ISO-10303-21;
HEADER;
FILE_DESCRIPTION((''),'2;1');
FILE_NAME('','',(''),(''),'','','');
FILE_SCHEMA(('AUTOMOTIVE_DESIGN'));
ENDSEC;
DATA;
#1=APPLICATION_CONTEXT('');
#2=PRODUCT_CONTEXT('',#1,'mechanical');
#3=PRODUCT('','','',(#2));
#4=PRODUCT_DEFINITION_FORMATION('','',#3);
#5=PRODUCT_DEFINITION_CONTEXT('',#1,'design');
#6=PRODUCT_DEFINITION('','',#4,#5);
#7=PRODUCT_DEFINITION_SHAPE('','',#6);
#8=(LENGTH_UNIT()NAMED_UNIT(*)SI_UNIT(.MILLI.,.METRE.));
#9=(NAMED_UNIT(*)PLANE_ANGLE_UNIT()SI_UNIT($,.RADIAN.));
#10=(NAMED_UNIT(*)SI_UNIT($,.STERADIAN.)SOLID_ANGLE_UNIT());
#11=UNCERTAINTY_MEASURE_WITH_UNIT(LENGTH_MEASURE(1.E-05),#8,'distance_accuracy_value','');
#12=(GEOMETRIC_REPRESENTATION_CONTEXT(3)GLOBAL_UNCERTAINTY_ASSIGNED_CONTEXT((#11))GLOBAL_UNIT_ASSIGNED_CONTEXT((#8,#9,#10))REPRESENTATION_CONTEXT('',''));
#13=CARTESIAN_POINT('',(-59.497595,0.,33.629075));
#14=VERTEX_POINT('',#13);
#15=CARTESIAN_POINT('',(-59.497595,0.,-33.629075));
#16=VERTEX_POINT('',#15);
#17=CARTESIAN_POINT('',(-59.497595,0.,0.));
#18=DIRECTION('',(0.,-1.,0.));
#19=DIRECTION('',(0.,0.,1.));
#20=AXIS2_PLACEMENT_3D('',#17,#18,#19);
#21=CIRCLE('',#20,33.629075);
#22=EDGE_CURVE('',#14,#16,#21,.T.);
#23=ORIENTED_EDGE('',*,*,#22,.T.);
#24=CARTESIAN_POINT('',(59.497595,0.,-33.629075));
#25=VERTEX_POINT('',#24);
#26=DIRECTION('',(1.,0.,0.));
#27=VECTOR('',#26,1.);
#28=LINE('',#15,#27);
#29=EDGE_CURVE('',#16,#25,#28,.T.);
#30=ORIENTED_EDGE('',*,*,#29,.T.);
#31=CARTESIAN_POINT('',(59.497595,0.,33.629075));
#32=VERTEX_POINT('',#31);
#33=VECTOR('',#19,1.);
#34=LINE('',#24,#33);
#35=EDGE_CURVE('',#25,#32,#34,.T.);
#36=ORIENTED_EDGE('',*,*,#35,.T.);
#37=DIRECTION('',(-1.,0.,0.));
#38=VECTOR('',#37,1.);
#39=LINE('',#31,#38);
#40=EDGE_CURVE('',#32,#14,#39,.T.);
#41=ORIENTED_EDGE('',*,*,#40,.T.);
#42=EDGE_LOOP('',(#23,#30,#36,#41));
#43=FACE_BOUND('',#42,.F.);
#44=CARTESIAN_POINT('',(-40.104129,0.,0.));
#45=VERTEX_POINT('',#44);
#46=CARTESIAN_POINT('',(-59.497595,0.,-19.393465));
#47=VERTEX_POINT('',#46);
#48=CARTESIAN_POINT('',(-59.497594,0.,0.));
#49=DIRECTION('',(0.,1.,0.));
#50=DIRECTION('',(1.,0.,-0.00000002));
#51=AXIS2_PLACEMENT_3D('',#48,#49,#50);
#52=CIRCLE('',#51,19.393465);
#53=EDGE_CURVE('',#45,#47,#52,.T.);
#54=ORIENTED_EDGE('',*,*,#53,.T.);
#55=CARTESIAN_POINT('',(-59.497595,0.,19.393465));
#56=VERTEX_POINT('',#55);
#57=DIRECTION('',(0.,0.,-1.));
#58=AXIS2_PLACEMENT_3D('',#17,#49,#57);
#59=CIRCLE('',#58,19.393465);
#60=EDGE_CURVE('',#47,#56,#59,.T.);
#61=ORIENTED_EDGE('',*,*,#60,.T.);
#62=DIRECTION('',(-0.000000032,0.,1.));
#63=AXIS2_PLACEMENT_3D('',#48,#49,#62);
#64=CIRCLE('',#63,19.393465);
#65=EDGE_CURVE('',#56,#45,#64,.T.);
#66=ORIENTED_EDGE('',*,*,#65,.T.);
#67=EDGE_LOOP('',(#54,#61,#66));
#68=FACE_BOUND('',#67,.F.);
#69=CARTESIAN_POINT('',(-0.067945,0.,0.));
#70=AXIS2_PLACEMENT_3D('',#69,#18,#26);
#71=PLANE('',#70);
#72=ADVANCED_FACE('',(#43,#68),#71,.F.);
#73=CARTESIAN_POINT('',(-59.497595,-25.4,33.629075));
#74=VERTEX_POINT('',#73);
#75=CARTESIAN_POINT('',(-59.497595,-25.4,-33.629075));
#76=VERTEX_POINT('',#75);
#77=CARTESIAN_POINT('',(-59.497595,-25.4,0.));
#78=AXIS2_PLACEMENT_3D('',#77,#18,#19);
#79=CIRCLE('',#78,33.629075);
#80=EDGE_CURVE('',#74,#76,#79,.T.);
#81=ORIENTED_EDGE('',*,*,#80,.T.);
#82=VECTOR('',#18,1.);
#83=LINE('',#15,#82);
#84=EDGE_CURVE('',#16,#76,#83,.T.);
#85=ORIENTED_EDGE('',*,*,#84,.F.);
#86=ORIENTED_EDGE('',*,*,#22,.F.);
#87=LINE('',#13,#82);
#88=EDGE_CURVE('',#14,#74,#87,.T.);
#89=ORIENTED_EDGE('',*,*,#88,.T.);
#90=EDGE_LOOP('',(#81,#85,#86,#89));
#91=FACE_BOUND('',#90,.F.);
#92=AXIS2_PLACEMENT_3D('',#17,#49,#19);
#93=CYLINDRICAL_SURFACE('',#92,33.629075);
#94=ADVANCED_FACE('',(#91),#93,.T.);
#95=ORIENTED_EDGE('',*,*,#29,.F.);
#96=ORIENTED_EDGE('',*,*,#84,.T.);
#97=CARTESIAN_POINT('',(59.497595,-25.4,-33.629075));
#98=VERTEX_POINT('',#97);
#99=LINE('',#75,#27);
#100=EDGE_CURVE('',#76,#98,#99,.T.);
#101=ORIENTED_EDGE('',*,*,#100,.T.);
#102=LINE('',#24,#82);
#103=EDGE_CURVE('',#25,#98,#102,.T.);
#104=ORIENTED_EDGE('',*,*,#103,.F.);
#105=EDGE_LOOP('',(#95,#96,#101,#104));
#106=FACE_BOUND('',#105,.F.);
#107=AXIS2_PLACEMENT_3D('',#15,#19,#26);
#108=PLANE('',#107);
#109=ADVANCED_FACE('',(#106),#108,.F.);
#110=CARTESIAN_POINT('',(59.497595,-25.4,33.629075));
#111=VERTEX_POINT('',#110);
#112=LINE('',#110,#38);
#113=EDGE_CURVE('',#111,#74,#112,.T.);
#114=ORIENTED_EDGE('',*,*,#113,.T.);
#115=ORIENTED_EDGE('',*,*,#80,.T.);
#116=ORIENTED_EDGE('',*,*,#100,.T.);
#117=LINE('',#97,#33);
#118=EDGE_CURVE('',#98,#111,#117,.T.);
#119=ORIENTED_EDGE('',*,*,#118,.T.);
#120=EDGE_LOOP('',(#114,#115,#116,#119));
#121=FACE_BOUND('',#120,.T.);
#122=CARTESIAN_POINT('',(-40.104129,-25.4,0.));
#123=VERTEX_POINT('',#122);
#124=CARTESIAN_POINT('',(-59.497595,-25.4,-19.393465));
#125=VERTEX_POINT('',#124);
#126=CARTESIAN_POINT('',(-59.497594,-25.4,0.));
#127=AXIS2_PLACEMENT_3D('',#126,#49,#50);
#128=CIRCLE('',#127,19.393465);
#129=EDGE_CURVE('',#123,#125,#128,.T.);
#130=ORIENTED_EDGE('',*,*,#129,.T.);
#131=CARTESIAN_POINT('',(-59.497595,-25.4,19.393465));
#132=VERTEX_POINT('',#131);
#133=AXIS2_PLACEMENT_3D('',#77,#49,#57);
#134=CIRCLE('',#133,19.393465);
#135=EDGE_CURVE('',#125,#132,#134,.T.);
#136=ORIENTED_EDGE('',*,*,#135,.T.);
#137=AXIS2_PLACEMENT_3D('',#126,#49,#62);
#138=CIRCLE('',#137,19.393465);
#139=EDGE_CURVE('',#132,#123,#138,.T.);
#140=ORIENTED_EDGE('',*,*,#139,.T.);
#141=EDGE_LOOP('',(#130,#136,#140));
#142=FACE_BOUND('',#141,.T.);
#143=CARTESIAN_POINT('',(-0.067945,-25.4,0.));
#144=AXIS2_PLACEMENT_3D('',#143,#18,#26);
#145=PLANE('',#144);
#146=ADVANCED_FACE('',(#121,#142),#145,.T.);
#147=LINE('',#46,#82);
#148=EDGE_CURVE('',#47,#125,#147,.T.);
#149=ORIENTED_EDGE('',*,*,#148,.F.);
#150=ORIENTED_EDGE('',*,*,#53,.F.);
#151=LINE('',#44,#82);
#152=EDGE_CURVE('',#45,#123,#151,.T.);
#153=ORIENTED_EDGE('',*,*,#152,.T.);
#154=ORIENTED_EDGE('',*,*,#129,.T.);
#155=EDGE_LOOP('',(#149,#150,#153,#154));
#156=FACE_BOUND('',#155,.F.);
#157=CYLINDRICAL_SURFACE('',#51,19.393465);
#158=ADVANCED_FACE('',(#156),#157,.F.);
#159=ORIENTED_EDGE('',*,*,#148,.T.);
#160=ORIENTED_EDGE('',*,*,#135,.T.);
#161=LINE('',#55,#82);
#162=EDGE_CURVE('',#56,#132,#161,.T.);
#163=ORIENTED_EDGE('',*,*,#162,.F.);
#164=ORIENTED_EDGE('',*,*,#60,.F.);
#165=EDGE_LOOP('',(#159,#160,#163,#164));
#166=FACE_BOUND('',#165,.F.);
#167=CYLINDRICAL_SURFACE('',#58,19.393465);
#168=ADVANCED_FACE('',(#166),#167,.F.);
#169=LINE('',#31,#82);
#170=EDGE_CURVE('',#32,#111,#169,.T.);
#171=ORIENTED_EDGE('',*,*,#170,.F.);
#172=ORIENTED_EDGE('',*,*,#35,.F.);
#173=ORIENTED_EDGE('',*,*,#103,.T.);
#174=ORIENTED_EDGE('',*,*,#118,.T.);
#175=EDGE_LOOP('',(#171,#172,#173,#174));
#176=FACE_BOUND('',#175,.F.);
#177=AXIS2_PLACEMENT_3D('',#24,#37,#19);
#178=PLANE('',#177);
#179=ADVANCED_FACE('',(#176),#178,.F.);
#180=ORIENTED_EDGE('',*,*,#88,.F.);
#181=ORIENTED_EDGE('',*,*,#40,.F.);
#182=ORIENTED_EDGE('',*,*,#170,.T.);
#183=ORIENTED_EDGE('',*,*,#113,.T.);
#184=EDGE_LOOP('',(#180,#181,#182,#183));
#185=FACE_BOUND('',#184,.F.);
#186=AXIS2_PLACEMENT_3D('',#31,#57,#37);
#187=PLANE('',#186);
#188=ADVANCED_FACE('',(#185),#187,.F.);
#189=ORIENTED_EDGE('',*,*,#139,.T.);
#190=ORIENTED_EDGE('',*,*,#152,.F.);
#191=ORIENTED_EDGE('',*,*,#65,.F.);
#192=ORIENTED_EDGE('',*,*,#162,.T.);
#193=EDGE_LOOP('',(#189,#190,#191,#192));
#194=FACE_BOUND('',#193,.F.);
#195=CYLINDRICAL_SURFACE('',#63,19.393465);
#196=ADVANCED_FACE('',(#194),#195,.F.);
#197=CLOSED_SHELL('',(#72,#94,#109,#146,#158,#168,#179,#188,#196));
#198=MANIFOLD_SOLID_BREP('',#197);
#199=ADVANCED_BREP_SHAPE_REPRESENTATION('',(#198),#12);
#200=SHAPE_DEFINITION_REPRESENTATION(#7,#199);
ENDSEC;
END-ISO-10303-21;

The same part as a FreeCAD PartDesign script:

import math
import FreeCAD as App
import Part
import Sketcher
from FreeCAD import Vector
Q = App.Units.Quantity

doc = App.newDocument("Part")
body = doc.addObject("PartDesign::Body", "Body")

# Sketch on XZ plane
sketch1 = body.newObject("Sketcher::SketchObject", "Sketch")
sketch1.AttachmentSupport = (doc.getObject("XZ_Plane"), [""])
sketch1.MapMode = "FlatFace"
sketch1.addGeometry([
    Part.LineSegment(Vector(-59, -34, 0), Vector(59, -34, 0)),  # 0
    Part.LineSegment(Vector(59, -34, 0), Vector(59, 34, 0)),  # 1
    Part.LineSegment(Vector(59, 34, 0), Vector(-59, 34, 0)),  # 2
    Part.ArcOfCircle(Part.Circle(Vector(-59, 0, 0), Vector(0, 0, 1), 34), math.radians(90), math.radians(270)),  # 3
    Part.ArcOfCircle(Part.Circle(Vector(-59, 0, 0), Vector(0, 0, 1), 19), math.radians(0), math.radians(90)),  # 4
    Part.ArcOfCircle(Part.Circle(Vector(-59, 0, 0), Vector(0, 0, 1), 19), math.radians(-90), math.radians(0)),  # 5
    Part.ArcOfCircle(Part.Circle(Vector(-59, 0, 0), Vector(0, 0, 1), 19), math.radians(90), math.radians(270)),  # 6
], False)
sketch1.addConstraint([
    Sketcher.Constraint("Coincident", 0, 2, 1, 1),
    Sketcher.Constraint("Coincident", 1, 2, 2, 1),
    Sketcher.Constraint("Tangent", 2, 2, 3, 1),
    Sketcher.Constraint("Tangent", 3, 2, 0, 1),
    Sketcher.Constraint("Tangent", 4, 1, 5, 2),
    Sketcher.Constraint("Tangent", 5, 1, 6, 2),
    Sketcher.Constraint("Tangent", 6, 1, 4, 2),
    Sketcher.Constraint("Horizontal", 0),
    Sketcher.Constraint("Vertical", 1),
    Sketcher.Constraint("Horizontal", 2),
    Sketcher.Constraint("Coincident", 4, 3, 3, 3),
    Sketcher.Constraint("Symmetric", 0, 2, 2, 2, -1, 1),
    Sketcher.Constraint("PointOnObject", 4, 1, -1),
    Sketcher.Constraint("Vertical", 3, 2, 5, 1),
    Sketcher.Constraint("Vertical", 5, 1, 6, 1),
    Sketcher.Constraint("Radius", 3, Q("33.629075 mm")),
    Sketcher.Constraint("Radius", 4, Q("19.393465 mm")),
    Sketcher.Constraint("DistanceX", 0, 1, 0, 2, Q("118.99519 mm")),
])
pad1 = body.newObject("PartDesign::Pad", "Pad")
pad1.Profile = sketch1
pad1.Length = Q("1 in")

doc.recompute()
